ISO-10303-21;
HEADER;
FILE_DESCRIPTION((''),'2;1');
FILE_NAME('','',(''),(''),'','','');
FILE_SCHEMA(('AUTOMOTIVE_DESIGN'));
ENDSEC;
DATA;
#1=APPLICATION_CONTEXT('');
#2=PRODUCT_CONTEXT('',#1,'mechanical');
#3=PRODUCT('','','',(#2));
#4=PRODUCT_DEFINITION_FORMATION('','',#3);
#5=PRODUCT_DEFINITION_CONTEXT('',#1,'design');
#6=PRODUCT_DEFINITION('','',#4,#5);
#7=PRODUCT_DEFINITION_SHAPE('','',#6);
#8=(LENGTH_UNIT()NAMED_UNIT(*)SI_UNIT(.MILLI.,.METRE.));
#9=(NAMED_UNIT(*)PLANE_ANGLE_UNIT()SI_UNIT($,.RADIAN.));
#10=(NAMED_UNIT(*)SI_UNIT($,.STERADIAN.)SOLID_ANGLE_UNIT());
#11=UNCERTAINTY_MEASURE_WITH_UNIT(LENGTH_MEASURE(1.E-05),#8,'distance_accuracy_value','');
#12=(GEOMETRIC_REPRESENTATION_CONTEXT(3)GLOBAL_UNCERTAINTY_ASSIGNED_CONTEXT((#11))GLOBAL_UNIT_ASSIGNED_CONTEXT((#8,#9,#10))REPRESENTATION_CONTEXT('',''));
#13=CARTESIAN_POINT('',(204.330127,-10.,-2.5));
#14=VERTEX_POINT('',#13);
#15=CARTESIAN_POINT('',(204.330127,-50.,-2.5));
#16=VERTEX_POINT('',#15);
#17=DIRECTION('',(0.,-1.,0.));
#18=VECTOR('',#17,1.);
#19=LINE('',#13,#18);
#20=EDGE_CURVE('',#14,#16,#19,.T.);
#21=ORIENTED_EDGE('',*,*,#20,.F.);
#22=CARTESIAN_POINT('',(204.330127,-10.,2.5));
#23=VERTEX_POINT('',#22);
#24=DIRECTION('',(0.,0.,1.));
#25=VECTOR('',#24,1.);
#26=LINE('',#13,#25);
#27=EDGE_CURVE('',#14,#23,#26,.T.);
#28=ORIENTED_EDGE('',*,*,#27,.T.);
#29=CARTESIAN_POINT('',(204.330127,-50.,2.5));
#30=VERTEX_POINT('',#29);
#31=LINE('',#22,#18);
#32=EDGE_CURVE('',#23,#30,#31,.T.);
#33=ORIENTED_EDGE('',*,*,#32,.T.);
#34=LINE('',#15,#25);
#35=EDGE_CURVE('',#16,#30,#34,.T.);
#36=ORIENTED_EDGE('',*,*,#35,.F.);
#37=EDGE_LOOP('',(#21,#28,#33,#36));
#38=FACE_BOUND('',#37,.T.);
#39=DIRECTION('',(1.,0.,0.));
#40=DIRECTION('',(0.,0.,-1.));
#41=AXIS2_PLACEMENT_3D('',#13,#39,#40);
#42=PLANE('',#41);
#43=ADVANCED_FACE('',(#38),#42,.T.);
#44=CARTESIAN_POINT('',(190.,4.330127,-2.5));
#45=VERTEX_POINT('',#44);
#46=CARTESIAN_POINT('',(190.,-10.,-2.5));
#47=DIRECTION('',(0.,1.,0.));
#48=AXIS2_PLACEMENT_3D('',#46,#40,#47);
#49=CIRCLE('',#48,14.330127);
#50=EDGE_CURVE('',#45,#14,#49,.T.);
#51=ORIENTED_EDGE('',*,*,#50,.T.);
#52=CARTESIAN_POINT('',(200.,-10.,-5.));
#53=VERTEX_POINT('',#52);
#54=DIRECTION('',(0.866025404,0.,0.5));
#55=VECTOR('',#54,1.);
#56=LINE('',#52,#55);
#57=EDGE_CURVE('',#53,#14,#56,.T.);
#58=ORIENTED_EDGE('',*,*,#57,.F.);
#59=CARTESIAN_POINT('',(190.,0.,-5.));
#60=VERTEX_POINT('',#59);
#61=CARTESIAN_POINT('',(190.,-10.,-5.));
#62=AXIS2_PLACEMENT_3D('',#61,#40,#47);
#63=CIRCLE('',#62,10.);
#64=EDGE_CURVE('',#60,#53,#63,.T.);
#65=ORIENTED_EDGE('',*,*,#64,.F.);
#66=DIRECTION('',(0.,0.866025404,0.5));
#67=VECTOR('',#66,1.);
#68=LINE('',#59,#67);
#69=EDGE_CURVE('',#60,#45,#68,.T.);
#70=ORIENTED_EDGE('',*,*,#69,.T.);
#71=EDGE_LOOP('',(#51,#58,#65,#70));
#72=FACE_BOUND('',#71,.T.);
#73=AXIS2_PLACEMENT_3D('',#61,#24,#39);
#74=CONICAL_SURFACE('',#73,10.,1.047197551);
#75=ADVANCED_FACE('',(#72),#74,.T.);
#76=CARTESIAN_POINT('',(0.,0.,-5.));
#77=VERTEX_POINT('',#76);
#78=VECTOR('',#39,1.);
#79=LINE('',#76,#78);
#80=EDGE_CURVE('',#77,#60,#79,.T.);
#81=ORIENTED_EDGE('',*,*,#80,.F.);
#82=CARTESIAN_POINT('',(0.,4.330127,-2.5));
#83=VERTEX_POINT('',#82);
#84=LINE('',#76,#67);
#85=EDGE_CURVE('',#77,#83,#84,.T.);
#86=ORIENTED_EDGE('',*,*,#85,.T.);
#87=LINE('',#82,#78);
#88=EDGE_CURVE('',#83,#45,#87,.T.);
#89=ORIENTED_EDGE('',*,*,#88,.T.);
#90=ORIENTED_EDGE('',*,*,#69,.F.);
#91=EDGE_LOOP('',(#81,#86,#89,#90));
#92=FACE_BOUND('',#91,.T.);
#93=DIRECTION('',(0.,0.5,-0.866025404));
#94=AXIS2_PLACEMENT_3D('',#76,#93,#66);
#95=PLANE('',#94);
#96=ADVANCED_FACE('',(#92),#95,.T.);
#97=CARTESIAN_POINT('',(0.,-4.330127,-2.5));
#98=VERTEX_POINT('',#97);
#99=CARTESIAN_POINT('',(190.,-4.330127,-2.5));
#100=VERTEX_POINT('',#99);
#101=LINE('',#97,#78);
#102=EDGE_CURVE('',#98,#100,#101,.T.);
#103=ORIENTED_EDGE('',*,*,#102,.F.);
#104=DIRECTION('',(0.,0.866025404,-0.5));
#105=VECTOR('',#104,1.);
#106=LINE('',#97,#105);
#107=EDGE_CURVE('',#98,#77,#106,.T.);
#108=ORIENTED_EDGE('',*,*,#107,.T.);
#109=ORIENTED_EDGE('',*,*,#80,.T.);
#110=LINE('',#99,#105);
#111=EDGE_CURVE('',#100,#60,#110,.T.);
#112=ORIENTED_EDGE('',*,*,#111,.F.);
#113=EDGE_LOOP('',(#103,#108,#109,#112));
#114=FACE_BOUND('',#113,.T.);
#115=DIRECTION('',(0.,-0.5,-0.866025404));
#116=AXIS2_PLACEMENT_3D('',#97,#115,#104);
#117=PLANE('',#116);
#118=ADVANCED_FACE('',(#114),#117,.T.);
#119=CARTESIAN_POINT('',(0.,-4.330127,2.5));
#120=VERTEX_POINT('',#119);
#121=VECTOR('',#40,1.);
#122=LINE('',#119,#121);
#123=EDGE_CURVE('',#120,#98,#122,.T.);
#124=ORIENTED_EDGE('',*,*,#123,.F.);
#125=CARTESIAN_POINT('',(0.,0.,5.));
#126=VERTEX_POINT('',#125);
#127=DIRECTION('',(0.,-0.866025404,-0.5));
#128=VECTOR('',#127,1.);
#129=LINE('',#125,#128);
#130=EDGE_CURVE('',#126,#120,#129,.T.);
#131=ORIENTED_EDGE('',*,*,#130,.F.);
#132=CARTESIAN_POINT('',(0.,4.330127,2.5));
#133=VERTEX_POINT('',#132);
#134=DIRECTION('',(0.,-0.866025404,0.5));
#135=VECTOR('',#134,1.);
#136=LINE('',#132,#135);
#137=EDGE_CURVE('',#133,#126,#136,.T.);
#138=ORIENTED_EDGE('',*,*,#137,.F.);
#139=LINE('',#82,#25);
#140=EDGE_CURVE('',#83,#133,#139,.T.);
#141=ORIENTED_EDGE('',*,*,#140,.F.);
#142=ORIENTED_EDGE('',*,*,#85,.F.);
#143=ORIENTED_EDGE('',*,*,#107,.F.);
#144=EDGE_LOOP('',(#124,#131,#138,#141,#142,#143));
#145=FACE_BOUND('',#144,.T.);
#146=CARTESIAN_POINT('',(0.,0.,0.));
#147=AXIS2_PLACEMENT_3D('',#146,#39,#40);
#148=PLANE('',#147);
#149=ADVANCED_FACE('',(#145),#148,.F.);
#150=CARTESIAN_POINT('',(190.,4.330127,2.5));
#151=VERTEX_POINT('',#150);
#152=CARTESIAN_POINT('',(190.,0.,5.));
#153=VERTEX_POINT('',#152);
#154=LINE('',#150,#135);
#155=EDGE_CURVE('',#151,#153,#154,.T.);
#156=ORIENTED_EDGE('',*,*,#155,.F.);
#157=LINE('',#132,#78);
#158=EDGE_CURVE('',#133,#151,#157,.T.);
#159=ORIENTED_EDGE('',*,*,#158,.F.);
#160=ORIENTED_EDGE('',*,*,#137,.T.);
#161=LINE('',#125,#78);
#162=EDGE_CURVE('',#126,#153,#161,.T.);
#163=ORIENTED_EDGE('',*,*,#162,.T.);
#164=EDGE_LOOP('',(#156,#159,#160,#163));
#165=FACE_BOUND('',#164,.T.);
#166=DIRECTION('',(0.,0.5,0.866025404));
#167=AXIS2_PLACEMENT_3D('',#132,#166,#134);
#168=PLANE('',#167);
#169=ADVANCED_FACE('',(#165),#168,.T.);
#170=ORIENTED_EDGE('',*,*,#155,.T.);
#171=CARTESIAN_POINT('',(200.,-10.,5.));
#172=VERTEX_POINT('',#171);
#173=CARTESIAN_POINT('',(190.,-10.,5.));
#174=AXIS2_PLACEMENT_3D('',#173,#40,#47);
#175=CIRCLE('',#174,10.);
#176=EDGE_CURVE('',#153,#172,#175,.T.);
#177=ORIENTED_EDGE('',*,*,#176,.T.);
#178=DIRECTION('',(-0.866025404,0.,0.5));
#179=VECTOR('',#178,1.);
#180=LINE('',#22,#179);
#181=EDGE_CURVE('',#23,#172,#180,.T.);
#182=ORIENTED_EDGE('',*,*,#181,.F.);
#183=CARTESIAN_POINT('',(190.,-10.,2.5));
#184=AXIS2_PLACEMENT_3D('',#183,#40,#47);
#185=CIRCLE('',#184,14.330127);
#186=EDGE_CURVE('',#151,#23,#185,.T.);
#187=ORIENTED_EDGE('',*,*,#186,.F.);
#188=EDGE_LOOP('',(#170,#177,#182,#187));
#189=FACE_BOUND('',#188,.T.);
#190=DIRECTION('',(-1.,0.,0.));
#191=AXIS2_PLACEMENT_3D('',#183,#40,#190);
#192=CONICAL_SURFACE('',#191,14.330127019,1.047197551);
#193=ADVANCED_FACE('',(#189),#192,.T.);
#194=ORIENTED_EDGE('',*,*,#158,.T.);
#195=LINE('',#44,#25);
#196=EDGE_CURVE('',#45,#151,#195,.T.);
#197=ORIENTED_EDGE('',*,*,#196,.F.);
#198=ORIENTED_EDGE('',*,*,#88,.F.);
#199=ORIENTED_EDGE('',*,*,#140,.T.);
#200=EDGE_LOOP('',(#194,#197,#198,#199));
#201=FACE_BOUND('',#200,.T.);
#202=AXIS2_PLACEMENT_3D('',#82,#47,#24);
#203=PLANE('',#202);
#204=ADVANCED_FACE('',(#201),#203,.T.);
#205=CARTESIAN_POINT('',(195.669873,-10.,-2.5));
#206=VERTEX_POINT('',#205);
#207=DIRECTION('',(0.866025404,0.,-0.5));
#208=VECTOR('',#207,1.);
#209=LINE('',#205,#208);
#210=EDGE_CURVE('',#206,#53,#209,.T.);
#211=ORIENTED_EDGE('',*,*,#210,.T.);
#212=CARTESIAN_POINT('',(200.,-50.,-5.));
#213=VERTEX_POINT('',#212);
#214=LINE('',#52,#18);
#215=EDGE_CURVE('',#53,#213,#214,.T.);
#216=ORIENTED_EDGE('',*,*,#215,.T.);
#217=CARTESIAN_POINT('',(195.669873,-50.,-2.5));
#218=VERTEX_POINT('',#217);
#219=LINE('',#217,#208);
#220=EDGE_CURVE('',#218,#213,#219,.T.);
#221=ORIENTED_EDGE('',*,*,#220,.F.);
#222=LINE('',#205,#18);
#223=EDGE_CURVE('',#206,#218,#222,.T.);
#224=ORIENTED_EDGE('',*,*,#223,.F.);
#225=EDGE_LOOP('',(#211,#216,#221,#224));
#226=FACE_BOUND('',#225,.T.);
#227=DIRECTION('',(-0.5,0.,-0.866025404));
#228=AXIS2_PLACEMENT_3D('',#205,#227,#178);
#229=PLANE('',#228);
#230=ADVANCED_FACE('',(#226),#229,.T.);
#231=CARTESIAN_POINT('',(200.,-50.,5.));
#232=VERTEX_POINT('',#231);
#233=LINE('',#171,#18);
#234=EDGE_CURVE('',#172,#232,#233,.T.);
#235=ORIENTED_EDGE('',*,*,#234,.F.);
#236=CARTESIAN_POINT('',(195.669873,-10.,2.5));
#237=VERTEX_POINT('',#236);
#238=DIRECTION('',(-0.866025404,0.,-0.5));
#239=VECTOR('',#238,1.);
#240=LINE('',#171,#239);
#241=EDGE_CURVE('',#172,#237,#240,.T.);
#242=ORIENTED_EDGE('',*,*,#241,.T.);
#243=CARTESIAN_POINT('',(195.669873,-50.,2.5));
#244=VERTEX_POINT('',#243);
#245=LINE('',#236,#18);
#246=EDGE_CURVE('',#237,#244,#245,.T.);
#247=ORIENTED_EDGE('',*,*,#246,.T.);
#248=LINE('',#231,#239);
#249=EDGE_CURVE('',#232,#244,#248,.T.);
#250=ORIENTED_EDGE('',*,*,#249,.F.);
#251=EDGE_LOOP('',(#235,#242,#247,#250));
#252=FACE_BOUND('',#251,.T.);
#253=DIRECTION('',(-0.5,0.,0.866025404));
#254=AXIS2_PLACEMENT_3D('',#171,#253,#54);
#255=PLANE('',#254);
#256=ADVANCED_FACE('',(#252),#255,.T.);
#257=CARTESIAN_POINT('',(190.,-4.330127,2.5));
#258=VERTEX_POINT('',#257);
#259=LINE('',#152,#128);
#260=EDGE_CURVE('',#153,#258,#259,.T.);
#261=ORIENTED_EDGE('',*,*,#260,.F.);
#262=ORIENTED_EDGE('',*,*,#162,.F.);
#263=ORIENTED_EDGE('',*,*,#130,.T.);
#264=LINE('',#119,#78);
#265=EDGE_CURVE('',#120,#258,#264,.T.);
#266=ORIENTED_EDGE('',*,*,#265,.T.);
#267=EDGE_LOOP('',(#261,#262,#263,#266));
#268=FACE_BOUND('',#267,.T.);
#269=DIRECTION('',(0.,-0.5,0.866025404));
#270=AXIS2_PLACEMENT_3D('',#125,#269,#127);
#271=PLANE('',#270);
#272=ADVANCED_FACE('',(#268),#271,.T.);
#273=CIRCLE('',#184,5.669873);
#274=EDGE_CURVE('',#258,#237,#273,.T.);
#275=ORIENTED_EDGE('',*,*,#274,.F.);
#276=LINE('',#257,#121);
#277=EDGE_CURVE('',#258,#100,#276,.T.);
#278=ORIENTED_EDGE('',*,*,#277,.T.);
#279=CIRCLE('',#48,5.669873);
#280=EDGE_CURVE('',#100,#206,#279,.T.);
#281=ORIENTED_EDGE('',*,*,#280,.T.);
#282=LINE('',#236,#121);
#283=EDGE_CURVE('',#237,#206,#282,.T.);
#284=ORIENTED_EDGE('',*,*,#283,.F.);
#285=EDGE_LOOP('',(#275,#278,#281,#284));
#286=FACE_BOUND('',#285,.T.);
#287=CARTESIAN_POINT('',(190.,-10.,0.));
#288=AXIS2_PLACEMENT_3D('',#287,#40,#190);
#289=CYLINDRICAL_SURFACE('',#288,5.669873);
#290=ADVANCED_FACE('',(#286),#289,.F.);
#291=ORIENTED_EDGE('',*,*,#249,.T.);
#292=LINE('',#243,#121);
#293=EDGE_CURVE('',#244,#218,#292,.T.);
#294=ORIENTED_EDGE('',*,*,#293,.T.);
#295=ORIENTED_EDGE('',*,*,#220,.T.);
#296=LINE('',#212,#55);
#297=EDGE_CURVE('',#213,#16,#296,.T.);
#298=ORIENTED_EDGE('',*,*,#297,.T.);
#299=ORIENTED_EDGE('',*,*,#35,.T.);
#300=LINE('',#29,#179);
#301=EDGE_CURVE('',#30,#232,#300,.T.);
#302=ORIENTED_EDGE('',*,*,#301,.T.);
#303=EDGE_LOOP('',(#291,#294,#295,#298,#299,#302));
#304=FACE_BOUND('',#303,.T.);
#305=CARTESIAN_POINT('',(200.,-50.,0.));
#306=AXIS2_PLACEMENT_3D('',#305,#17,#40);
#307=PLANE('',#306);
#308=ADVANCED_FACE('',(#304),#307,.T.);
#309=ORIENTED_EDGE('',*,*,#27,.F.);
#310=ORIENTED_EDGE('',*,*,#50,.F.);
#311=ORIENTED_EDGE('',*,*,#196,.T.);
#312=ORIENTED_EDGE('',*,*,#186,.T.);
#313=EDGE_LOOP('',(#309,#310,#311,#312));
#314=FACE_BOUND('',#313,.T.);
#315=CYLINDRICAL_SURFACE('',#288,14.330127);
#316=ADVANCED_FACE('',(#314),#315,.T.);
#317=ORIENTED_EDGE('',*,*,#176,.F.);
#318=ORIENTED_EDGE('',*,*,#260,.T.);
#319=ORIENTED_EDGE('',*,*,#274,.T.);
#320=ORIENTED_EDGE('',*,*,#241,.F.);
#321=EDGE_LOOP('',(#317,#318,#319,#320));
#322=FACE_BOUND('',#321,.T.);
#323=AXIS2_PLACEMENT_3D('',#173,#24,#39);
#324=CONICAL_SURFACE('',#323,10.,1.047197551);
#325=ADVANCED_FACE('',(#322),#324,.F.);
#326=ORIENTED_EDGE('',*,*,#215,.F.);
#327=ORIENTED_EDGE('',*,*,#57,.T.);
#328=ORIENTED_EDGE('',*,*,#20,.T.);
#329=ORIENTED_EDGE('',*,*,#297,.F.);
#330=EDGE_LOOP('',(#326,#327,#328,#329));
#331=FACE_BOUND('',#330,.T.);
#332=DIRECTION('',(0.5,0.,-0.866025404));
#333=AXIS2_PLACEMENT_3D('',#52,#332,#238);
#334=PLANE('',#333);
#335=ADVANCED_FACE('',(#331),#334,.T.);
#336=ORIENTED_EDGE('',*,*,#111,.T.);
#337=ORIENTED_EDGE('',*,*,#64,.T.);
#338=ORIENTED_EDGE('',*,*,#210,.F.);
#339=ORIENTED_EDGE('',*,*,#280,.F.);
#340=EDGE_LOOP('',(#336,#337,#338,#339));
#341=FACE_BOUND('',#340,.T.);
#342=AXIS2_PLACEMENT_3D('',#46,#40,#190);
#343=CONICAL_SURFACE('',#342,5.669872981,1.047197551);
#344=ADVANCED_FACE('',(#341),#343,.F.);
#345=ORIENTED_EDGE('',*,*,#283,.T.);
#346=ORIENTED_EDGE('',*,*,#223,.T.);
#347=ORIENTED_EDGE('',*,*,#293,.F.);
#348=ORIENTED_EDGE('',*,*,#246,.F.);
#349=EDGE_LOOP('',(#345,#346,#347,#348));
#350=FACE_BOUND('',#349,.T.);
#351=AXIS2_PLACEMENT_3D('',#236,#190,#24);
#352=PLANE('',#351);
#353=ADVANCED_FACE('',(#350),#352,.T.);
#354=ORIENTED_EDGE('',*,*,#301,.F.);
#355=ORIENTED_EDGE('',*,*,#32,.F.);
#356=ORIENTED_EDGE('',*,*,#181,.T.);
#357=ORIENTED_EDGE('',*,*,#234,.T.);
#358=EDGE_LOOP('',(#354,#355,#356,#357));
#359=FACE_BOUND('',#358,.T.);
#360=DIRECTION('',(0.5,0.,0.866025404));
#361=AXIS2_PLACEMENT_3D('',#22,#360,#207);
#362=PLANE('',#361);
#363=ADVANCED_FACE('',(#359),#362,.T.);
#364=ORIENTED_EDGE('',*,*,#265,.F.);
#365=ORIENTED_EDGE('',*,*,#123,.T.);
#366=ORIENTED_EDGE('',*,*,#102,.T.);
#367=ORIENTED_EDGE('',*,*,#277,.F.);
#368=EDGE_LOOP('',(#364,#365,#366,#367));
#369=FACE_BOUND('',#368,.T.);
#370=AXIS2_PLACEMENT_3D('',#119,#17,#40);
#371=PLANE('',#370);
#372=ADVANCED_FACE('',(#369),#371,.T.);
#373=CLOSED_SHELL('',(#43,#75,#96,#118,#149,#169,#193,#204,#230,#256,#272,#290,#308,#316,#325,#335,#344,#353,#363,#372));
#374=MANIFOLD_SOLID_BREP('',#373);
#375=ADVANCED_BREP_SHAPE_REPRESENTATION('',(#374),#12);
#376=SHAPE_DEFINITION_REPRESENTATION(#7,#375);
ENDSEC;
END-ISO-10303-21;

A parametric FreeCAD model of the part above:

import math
import FreeCAD as App
import Part
import Sketcher
from FreeCAD import Vector
Q = App.Units.Quantity

doc = App.newDocument("Part")
params = doc.addObject("Spreadsheet::Sheet", "Params")
for row, (alias, value) in enumerate([
    ("sketch1_height", "5 mm"),
    ("sketch1_length", "5 mm"),
    ("sketch2_radius", "10 mm"),
    ("sketch2_width", "190 mm"),
    ("sketch2_height", "40 mm"),
], start=1):
    params.set(f"A{row}", alias)
    params.set(f"B{row}", "=" + value)
    params.setAlias(f"B{row}", alias)

body = doc.addObject("PartDesign::Body", "Body")

# Sketch on YZ plane
sketch1 = body.newObject("Sketcher::SketchObject", "Sketch")
sketch1.AttachmentSupport = (doc.getObject("YZ_Plane"), [""])
sketch1.MapMode = "FlatFace"
sketch1.addGeometry(Part.LineSegment(Vector(-4, -2, 0), Vector(0, -5, 0)), False)
sketch1.addGeometry(Part.LineSegment(Vector(0, -5, 0), Vector(4, -2, 0)), False)
sketch1.addGeometry(Part.LineSegment(Vector(4, -2, 0), Vector(4, 2, 0)), False)
sketch1.addGeometry(Part.LineSegment(Vector(4, 2, 0), Vector(0, 5, 0)), False)
sketch1.addGeometry(Part.LineSegment(Vector(0, 5, 0), Vector(-4, 2, 0)), False)
sketch1.addGeometry(Part.LineSegment(Vector(-4, 2, 0), Vector(-4, -2, 0)), False)
sketch1.addConstraint(Sketcher.Constraint("Coincident", 0, 2, 1, 1))
sketch1.addConstraint(Sketcher.Constraint("Coincident", 1, 2, 2, 1))
sketch1.addConstraint(Sketcher.Constraint("Coincident", 2, 2, 3, 1))
sketch1.addConstraint(Sketcher.Constraint("Coincident", 3, 2, 4, 1))
sketch1.addConstraint(Sketcher.Constraint("Coincident", 4, 2, 5, 1))
sketch1.addConstraint(Sketcher.Constraint("Coincident", 5, 2, 0, 1))
sketch1.addConstraint(Sketcher.Constraint("Vertical", 2))
sketch1.addConstraint(Sketcher.Constraint("Vertical", 5))
sketch1.addConstraint(Sketcher.Constraint("Symmetric", 0, 2, 3, 2, -1, 1))
sketch1.addConstraint(Sketcher.Constraint("Symmetric", 1, 2, 4, 2, -1, 1))
sketch1.addConstraint(Sketcher.Constraint("PointOnObject", 0, 2, -2))
sketch1.addConstraint(Sketcher.Constraint("Parallel", 0, 3))
sketch1.addConstraint(Sketcher.Constraint("Horizontal", 2, 2, 4, 2))
sketch1.addConstraint(Sketcher.Constraint("DistanceY", 2, 1, 2, 2, Q("5 mm")))
sketch1.addConstraint(Sketcher.Constraint("Angle", 0, Q("-30 deg")))
sketch1.addConstraint(Sketcher.Constraint("Distance", 0, Q("5 mm")))
sketch1.setExpression("Constraints[13]", "Params.sketch1_height")
sketch1.setExpression("Constraints[15]", "Params.sketch1_length")

# Sketch on XY plane
sketch2 = body.newObject("Sketcher::SketchObject", "Sketch001")
sketch2.AttachmentSupport = (doc.getObject("XY_Plane"), [""])
sketch2.MapMode = "FlatFace"
sketch2.addGeometry(Part.LineSegment(Vector(0, 0, 0), Vector(190, 0, 0)), False)
sketch2.addGeometry(Part.ArcOfCircle(Part.Circle(Vector(190, -10, 0), Vector(0, 0, 1), 10), math.radians(0), math.radians(90)), False)
sketch2.addGeometry(Part.LineSegment(Vector(200, -10, 0), Vector(200, -50, 0)), False)
sketch2.addConstraint(Sketcher.Constraint("Tangent", 0, 2, 1, 2))
sketch2.addConstraint(Sketcher.Constraint("Tangent", 1, 1, 2, 1))
sketch2.addConstraint(Sketcher.Constraint("Horizontal", 0))
sketch2.addConstraint(Sketcher.Constraint("Vertical", 2))
sketch2.addConstraint(Sketcher.Constraint("Coincident", 0, 1, -1, 1))
sketch2.addConstraint(Sketcher.Constraint("Radius", 1, Q("10 mm")))
sketch2.addConstraint(Sketcher.Constraint("DistanceX", 0, 1, 0, 2, Q("190 mm")))
sketch2.addConstraint(Sketcher.Constraint("DistanceY", 2, 2, 2, 1, Q("40 mm")))
sketch2.setExpression("Constraints[5]", "Params.sketch2_radius")
sketch2.setExpression("Constraints[6]", "Params.sketch2_width")
sketch2.setExpression("Constraints[7]", "Params.sketch2_height")
doc.recompute()

additivepipe = body.newObject("PartDesign::AdditivePipe", "AdditivePipe")
additivepipe.Profile = sketch1
additivepipe.Spine = (sketch2, ["Edge1", "Edge2", "Edge3"])

doc.recompute()
